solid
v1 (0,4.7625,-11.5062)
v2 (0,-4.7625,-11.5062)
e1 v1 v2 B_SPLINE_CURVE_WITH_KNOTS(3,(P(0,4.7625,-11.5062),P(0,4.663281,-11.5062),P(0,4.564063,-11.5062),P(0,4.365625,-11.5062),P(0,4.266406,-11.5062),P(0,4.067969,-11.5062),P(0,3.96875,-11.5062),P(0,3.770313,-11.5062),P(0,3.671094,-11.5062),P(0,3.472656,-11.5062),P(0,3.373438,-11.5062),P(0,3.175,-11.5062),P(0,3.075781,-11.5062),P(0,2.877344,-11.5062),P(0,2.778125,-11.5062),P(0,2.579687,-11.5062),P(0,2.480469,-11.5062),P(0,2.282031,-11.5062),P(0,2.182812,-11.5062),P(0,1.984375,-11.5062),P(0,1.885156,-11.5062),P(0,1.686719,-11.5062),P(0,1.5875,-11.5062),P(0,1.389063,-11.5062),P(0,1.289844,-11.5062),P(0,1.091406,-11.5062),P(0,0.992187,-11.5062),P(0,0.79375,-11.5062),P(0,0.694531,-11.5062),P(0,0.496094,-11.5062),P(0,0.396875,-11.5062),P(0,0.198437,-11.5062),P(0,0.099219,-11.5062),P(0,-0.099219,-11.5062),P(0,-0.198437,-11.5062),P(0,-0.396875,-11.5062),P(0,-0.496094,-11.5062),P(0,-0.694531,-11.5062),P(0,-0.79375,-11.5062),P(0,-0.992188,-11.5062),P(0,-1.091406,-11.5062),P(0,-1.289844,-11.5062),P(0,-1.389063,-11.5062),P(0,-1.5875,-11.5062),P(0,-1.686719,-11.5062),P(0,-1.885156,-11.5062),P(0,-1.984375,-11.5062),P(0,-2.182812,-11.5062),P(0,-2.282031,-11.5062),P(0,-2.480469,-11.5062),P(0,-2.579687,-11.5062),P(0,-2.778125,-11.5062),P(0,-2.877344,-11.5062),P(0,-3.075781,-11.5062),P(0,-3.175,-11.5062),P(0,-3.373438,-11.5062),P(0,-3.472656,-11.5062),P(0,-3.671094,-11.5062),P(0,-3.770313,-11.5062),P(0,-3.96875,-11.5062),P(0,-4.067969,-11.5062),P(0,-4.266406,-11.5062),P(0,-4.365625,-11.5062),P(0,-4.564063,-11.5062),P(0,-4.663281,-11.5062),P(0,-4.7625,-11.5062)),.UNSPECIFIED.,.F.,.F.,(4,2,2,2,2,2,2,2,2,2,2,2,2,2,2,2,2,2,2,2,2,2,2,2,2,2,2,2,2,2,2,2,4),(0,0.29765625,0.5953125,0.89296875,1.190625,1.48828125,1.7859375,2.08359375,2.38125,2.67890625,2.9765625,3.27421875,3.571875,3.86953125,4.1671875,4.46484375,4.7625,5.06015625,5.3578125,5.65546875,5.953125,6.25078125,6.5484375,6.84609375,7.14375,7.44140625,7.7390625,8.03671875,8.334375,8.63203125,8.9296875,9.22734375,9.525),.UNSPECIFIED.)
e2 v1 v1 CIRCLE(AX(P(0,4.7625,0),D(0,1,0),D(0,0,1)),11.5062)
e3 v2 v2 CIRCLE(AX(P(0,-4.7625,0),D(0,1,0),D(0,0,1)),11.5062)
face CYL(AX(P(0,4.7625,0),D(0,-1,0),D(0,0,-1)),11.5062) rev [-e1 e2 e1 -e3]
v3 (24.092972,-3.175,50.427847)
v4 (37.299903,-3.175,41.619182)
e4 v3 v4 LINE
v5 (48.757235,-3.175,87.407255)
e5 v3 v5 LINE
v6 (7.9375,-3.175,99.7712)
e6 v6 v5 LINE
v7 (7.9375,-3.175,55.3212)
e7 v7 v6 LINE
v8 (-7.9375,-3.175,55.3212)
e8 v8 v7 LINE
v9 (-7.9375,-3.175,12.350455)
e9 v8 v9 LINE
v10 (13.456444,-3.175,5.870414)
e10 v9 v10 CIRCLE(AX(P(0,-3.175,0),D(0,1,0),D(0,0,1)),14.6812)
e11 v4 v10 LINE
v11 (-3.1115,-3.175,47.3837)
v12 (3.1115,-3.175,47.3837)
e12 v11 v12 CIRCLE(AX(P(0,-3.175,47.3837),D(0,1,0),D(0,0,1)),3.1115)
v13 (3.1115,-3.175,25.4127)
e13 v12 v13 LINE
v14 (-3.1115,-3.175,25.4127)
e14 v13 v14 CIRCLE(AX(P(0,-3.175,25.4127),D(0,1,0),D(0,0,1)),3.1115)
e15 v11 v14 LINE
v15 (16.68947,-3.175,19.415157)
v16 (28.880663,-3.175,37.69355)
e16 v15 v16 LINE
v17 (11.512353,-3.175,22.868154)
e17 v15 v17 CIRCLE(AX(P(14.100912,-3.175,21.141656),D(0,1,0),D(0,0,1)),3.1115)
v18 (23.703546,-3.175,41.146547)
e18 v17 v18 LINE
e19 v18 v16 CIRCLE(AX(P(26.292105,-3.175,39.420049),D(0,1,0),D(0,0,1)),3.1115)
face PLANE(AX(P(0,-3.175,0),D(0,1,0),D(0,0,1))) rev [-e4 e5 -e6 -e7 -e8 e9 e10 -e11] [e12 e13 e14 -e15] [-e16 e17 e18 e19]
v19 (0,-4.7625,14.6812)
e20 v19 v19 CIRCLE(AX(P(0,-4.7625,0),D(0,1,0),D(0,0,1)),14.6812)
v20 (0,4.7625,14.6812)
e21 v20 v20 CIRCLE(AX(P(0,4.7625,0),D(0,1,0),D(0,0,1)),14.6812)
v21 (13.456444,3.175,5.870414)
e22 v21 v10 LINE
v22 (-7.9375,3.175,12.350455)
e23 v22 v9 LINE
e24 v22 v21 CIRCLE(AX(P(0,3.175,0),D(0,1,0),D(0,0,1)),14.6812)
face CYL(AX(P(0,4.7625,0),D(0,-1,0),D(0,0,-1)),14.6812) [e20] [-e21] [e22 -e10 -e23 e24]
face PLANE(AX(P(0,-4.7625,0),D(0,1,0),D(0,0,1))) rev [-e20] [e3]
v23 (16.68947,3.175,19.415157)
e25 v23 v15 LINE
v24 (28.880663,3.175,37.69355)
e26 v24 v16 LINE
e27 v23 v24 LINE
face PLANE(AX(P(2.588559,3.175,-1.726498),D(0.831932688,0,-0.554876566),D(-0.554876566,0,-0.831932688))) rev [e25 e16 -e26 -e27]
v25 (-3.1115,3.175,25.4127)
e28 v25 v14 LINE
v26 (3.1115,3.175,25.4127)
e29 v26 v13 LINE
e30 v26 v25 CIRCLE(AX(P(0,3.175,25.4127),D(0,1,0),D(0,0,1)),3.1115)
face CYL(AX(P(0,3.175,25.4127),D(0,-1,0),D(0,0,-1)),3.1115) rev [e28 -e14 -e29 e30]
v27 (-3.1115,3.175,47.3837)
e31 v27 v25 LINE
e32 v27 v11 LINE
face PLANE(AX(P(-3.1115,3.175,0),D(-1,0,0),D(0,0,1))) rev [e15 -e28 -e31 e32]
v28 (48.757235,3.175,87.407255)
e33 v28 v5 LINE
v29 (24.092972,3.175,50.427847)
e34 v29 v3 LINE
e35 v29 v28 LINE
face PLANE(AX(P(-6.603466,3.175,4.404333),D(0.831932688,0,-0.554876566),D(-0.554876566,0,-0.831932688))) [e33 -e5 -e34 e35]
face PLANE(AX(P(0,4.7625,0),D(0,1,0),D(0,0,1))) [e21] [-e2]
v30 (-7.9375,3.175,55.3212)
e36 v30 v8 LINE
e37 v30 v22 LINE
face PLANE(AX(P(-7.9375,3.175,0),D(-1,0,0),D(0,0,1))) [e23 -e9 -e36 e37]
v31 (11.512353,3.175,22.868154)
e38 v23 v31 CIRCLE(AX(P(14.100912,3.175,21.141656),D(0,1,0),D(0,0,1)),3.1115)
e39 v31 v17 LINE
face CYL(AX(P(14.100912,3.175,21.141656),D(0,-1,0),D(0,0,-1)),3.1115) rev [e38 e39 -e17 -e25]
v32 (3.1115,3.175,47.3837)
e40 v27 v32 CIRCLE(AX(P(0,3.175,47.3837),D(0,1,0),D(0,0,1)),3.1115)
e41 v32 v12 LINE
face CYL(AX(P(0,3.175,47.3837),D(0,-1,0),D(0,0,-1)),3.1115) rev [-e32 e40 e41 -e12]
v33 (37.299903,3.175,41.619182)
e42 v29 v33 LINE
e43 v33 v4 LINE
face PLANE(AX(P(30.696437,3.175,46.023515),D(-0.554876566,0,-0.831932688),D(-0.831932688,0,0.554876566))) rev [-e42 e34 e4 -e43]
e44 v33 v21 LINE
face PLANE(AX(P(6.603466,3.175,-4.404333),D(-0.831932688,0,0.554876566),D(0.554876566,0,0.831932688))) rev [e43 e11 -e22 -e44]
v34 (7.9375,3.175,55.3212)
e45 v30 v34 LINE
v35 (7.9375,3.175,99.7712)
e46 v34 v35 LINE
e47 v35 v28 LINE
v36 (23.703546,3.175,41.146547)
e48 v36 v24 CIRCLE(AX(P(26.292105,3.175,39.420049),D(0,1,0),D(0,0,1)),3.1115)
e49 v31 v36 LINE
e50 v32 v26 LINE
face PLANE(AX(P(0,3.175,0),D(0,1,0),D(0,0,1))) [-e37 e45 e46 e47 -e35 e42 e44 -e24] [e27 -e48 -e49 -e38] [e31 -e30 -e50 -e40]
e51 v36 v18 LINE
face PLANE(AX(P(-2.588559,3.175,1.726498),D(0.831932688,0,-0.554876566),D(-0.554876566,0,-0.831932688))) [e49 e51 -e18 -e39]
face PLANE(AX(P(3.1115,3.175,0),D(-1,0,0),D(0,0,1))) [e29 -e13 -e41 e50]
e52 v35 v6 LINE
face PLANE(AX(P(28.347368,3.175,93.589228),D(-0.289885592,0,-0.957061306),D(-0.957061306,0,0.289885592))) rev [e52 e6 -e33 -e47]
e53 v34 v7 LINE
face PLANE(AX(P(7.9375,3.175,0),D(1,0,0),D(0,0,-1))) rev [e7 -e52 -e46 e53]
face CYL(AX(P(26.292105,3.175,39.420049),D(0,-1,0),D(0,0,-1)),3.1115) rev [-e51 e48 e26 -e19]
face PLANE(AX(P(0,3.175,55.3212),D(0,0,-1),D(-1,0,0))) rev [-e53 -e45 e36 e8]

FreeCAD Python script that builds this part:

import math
import FreeCAD as App
import Part
import Sketcher
Q = App.Units.Quantity

doc = App.newDocument("Part")
body = doc.addObject("PartDesign::Body", "Body")

sketch1 = body.newObject("Sketcher::SketchObject", "Sketch")
sketch1.AttachmentSupport = (doc.getObject("XZ_Plane"), [""])
sketch1.MapMode = "FlatFace"
sketch1.addGeometry([
    Part.Circle(App.Vector(0, 0, 0), App.Vector(0, 0, 1), 15),
    Part.Circle(App.Vector(0, 0, 0), App.Vector(0, 0, 1), 12),
], False)
sketch1.addConstraint([
    Sketcher.Constraint("Coincident", 0, 3, -1, 1),
    Sketcher.Constraint("Coincident", 1, 3, -1, 1),
    Sketcher.Constraint("Diameter", 0, Q("1.156 in")),
    Sketcher.Constraint("Diameter", 1, Q("0.906 in")),
])
pad1 = body.newObject("PartDesign::Pad", "Pad")
pad1.Profile = sketch1
pad1.Length = Q("0.375 in")
pad1.Midplane = True

sketch2 = body.newObject("Sketcher::SketchObject", "Sketch001")
sketch2.AttachmentSupport = (doc.getObject("XZ_Plane"), [""])
sketch2.MapMode = "FlatFace"
sketch2.addGeometry([
    Part.LineSegment(App.Vector(-7.9, 12.4, 0), App.Vector(-7.9, 55.3, 0)),
    Part.LineSegment(App.Vector(-7.9, 55.3, 0), App.Vector(7.9, 55.3, 0)),
    Part.LineSegment(App.Vector(7.9, 55.3, 0), App.Vector(7.9, 99.8, 0)),
    Part.LineSegment(App.Vector(7.9, 99.8, 0), App.Vector(48.8, 87.4, 0)),
    Part.LineSegment(App.Vector(48.8, 87.4, 0), App.Vector(24.1, 50.4, 0)),
    Part.LineSegment(App.Vector(24.1, 50.4, 0), App.Vector(30.7, 46, 0)),
    Part.LineSegment(App.Vector(30.7, 46, 0), App.Vector(37.3, 41.6, 0)),
    Part.LineSegment(App.Vector(37.3, 41.6, 0), App.Vector(13.5, 5.9, 0)),
    Part.ArcOfCircle(Part.Circle(App.Vector(0, 0, 0), App.Vector(0, 0, 1), 14.7), math.radians(24), math.radians(123)),
    Part.LineSegment(App.Vector(3.1, 25.4, 0), App.Vector(3.1, 47.4, 0)),
    Part.ArcOfCircle(Part.Circle(App.Vector(0, 47.4, 0), App.Vector(0, 0, 1), 3.1), math.radians(0), math.radians(180)),
    Part.LineSegment(App.Vector(-3.1, 47.4, 0), App.Vector(-3.1, 25.4, 0)),
    Part.ArcOfCircle(Part.Circle(App.Vector(0, 25.4, 0), App.Vector(0, 0, 1), 3.1), math.radians(180), math.radians(360)),
    Part.LineSegment(App.Vector(16.7, 19.4, 0), App.Vector(28.9, 37.7, 0)),
    Part.ArcOfCircle(Part.Circle(App.Vector(26.3, 39.4, 0), App.Vector(0, 0, 1), 3.1), math.radians(-34), math.radians(56)),
    Part.ArcOfCircle(Part.Circle(App.Vector(26.3, 39.4, 0), App.Vector(0, 0, 1), 3.1), math.radians(56), math.radians(146)),
    Part.LineSegment(App.Vector(23.7, 41.1, 0), App.Vector(11.5, 22.9, 0)),
    Part.ArcOfCircle(Part.Circle(App.Vector(14.1, 21.1, 0), App.Vector(0, 0, 1), 3.1), math.radians(146), math.radians(326)),
], False)
sketch2.addConstraint([
    Sketcher.Constraint("Coincident", 0, 2, 1, 1),
    Sketcher.Constraint("Coincident", 1, 2, 2, 1),
    Sketcher.Constraint("Coincident", 2, 2, 3, 1),
    Sketcher.Constraint("Coincident", 3, 2, 4, 1),
    Sketcher.Constraint("Coincident", 4, 2, 5, 1),
    Sketcher.Constraint("Coincident", 5, 2, 6, 1),
    Sketcher.Constraint("Coincident", 6, 2, 7, 1),
    Sketcher.Constraint("Coincident", 7, 2, 8, 1),
    Sketcher.Constraint("Coincident", 8, 2, 0, 1),
    Sketcher.Constraint("Tangent", 9, 2, 10, 1),
    Sketcher.Constraint("Tangent", 10, 2, 11, 1),
    Sketcher.Constraint("Tangent", 11, 2, 12, 1),
    Sketcher.Constraint("Tangent", 12, 2, 9, 1),
    Sketcher.Constraint("Tangent", 13, 2, 14, 1),
    Sketcher.Constraint("Tangent", 14, 2, 15, 1),
    Sketcher.Constraint("Tangent", 15, 2, 16, 1),
    Sketcher.Constraint("Tangent", 16, 2, 17, 1),
    Sketcher.Constraint("Tangent", 17, 2, 13, 1),
    Sketcher.Constraint("Vertical", 0),
    Sketcher.Constraint("Horizontal", 1),
    Sketcher.Constraint("Vertical", 2),
    Sketcher.Constraint("Vertical", 9),
    Sketcher.Constraint("Vertical", 11),
    Sketcher.Constraint("Coincident", 8, 3, -1, 1),
    Sketcher.Constraint("Equal", 12, 14),
    Sketcher.Constraint("Equal", 14, 15),
    Sketcher.Constraint("Equal", 15, 17),
    Sketcher.Constraint("PointOnObject", 10, 3, -2),
    Sketcher.Constraint("Perpendicular", 4, 5),
    Sketcher.Constraint("Parallel", 5, 6),
    Sketcher.Constraint("Perpendicular", 6, 7),
    Sketcher.Constraint("Parallel", 7, 13),
    Sketcher.Constraint("Equal", 5, 6),
    Sketcher.Constraint("Radius", 8, Q("0.578 in")),
    Sketcher.Constraint("DistanceY", 2, 1, 2, 2, Q("1.75 in")),
    Sketcher.Constraint("Radius", 10, Q("0.1225 in")),
    Sketcher.Constraint("Distance", 4, Q("1.75 in")),
    Sketcher.Constraint("DistanceX", 1, 1, 1, 2, Q("0.625 in")),
    Sketcher.Constraint("DistanceY", 9, 1, 9, 2, Q("0.865 in")),
    Sketcher.Constraint("DistanceX", 9, 2, 1, 2, Q("0.19 in")),
    Sketcher.Constraint("Distance", 5, Q("0.3125 in")),
    Sketcher.Constraint("Distance", 13, Q("0.865 in")),
    Sketcher.Constraint("DistanceY", -1, 1, 0, 2, Q("2.178 in")),
    Sketcher.Constraint("DistanceY", 10, 3, 0, 2, Q("0.3125 in")),
    Sketcher.Constraint("DistanceX", -1, 1, 6, 2, Q("1.4685001 in")),
    Sketcher.Constraint("DistanceY", 15, 3, 4, 2, Q("11.007798 mm")),
    Sketcher.Constraint("DistanceX", 14, 3, 6, 2, Q("11.007798 mm")),
    Sketcher.Constraint("DistanceY", 8, 2, 17, 3, Q("8.791201 mm")),
    Sketcher.Constraint("DistanceY", 13, 2, 14, 3, Q("1.726498 mm")),
    Sketcher.Constraint("DistanceX", 14, 3, 14, 2, Q("1.726498 mm")),
])
pad2 = body.newObject("PartDesign::Pad", "Pad001")
pad2.Profile = sketch2
pad2.Length = Q("0.25 in")
pad2.Midplane = True

doc.recompute()
